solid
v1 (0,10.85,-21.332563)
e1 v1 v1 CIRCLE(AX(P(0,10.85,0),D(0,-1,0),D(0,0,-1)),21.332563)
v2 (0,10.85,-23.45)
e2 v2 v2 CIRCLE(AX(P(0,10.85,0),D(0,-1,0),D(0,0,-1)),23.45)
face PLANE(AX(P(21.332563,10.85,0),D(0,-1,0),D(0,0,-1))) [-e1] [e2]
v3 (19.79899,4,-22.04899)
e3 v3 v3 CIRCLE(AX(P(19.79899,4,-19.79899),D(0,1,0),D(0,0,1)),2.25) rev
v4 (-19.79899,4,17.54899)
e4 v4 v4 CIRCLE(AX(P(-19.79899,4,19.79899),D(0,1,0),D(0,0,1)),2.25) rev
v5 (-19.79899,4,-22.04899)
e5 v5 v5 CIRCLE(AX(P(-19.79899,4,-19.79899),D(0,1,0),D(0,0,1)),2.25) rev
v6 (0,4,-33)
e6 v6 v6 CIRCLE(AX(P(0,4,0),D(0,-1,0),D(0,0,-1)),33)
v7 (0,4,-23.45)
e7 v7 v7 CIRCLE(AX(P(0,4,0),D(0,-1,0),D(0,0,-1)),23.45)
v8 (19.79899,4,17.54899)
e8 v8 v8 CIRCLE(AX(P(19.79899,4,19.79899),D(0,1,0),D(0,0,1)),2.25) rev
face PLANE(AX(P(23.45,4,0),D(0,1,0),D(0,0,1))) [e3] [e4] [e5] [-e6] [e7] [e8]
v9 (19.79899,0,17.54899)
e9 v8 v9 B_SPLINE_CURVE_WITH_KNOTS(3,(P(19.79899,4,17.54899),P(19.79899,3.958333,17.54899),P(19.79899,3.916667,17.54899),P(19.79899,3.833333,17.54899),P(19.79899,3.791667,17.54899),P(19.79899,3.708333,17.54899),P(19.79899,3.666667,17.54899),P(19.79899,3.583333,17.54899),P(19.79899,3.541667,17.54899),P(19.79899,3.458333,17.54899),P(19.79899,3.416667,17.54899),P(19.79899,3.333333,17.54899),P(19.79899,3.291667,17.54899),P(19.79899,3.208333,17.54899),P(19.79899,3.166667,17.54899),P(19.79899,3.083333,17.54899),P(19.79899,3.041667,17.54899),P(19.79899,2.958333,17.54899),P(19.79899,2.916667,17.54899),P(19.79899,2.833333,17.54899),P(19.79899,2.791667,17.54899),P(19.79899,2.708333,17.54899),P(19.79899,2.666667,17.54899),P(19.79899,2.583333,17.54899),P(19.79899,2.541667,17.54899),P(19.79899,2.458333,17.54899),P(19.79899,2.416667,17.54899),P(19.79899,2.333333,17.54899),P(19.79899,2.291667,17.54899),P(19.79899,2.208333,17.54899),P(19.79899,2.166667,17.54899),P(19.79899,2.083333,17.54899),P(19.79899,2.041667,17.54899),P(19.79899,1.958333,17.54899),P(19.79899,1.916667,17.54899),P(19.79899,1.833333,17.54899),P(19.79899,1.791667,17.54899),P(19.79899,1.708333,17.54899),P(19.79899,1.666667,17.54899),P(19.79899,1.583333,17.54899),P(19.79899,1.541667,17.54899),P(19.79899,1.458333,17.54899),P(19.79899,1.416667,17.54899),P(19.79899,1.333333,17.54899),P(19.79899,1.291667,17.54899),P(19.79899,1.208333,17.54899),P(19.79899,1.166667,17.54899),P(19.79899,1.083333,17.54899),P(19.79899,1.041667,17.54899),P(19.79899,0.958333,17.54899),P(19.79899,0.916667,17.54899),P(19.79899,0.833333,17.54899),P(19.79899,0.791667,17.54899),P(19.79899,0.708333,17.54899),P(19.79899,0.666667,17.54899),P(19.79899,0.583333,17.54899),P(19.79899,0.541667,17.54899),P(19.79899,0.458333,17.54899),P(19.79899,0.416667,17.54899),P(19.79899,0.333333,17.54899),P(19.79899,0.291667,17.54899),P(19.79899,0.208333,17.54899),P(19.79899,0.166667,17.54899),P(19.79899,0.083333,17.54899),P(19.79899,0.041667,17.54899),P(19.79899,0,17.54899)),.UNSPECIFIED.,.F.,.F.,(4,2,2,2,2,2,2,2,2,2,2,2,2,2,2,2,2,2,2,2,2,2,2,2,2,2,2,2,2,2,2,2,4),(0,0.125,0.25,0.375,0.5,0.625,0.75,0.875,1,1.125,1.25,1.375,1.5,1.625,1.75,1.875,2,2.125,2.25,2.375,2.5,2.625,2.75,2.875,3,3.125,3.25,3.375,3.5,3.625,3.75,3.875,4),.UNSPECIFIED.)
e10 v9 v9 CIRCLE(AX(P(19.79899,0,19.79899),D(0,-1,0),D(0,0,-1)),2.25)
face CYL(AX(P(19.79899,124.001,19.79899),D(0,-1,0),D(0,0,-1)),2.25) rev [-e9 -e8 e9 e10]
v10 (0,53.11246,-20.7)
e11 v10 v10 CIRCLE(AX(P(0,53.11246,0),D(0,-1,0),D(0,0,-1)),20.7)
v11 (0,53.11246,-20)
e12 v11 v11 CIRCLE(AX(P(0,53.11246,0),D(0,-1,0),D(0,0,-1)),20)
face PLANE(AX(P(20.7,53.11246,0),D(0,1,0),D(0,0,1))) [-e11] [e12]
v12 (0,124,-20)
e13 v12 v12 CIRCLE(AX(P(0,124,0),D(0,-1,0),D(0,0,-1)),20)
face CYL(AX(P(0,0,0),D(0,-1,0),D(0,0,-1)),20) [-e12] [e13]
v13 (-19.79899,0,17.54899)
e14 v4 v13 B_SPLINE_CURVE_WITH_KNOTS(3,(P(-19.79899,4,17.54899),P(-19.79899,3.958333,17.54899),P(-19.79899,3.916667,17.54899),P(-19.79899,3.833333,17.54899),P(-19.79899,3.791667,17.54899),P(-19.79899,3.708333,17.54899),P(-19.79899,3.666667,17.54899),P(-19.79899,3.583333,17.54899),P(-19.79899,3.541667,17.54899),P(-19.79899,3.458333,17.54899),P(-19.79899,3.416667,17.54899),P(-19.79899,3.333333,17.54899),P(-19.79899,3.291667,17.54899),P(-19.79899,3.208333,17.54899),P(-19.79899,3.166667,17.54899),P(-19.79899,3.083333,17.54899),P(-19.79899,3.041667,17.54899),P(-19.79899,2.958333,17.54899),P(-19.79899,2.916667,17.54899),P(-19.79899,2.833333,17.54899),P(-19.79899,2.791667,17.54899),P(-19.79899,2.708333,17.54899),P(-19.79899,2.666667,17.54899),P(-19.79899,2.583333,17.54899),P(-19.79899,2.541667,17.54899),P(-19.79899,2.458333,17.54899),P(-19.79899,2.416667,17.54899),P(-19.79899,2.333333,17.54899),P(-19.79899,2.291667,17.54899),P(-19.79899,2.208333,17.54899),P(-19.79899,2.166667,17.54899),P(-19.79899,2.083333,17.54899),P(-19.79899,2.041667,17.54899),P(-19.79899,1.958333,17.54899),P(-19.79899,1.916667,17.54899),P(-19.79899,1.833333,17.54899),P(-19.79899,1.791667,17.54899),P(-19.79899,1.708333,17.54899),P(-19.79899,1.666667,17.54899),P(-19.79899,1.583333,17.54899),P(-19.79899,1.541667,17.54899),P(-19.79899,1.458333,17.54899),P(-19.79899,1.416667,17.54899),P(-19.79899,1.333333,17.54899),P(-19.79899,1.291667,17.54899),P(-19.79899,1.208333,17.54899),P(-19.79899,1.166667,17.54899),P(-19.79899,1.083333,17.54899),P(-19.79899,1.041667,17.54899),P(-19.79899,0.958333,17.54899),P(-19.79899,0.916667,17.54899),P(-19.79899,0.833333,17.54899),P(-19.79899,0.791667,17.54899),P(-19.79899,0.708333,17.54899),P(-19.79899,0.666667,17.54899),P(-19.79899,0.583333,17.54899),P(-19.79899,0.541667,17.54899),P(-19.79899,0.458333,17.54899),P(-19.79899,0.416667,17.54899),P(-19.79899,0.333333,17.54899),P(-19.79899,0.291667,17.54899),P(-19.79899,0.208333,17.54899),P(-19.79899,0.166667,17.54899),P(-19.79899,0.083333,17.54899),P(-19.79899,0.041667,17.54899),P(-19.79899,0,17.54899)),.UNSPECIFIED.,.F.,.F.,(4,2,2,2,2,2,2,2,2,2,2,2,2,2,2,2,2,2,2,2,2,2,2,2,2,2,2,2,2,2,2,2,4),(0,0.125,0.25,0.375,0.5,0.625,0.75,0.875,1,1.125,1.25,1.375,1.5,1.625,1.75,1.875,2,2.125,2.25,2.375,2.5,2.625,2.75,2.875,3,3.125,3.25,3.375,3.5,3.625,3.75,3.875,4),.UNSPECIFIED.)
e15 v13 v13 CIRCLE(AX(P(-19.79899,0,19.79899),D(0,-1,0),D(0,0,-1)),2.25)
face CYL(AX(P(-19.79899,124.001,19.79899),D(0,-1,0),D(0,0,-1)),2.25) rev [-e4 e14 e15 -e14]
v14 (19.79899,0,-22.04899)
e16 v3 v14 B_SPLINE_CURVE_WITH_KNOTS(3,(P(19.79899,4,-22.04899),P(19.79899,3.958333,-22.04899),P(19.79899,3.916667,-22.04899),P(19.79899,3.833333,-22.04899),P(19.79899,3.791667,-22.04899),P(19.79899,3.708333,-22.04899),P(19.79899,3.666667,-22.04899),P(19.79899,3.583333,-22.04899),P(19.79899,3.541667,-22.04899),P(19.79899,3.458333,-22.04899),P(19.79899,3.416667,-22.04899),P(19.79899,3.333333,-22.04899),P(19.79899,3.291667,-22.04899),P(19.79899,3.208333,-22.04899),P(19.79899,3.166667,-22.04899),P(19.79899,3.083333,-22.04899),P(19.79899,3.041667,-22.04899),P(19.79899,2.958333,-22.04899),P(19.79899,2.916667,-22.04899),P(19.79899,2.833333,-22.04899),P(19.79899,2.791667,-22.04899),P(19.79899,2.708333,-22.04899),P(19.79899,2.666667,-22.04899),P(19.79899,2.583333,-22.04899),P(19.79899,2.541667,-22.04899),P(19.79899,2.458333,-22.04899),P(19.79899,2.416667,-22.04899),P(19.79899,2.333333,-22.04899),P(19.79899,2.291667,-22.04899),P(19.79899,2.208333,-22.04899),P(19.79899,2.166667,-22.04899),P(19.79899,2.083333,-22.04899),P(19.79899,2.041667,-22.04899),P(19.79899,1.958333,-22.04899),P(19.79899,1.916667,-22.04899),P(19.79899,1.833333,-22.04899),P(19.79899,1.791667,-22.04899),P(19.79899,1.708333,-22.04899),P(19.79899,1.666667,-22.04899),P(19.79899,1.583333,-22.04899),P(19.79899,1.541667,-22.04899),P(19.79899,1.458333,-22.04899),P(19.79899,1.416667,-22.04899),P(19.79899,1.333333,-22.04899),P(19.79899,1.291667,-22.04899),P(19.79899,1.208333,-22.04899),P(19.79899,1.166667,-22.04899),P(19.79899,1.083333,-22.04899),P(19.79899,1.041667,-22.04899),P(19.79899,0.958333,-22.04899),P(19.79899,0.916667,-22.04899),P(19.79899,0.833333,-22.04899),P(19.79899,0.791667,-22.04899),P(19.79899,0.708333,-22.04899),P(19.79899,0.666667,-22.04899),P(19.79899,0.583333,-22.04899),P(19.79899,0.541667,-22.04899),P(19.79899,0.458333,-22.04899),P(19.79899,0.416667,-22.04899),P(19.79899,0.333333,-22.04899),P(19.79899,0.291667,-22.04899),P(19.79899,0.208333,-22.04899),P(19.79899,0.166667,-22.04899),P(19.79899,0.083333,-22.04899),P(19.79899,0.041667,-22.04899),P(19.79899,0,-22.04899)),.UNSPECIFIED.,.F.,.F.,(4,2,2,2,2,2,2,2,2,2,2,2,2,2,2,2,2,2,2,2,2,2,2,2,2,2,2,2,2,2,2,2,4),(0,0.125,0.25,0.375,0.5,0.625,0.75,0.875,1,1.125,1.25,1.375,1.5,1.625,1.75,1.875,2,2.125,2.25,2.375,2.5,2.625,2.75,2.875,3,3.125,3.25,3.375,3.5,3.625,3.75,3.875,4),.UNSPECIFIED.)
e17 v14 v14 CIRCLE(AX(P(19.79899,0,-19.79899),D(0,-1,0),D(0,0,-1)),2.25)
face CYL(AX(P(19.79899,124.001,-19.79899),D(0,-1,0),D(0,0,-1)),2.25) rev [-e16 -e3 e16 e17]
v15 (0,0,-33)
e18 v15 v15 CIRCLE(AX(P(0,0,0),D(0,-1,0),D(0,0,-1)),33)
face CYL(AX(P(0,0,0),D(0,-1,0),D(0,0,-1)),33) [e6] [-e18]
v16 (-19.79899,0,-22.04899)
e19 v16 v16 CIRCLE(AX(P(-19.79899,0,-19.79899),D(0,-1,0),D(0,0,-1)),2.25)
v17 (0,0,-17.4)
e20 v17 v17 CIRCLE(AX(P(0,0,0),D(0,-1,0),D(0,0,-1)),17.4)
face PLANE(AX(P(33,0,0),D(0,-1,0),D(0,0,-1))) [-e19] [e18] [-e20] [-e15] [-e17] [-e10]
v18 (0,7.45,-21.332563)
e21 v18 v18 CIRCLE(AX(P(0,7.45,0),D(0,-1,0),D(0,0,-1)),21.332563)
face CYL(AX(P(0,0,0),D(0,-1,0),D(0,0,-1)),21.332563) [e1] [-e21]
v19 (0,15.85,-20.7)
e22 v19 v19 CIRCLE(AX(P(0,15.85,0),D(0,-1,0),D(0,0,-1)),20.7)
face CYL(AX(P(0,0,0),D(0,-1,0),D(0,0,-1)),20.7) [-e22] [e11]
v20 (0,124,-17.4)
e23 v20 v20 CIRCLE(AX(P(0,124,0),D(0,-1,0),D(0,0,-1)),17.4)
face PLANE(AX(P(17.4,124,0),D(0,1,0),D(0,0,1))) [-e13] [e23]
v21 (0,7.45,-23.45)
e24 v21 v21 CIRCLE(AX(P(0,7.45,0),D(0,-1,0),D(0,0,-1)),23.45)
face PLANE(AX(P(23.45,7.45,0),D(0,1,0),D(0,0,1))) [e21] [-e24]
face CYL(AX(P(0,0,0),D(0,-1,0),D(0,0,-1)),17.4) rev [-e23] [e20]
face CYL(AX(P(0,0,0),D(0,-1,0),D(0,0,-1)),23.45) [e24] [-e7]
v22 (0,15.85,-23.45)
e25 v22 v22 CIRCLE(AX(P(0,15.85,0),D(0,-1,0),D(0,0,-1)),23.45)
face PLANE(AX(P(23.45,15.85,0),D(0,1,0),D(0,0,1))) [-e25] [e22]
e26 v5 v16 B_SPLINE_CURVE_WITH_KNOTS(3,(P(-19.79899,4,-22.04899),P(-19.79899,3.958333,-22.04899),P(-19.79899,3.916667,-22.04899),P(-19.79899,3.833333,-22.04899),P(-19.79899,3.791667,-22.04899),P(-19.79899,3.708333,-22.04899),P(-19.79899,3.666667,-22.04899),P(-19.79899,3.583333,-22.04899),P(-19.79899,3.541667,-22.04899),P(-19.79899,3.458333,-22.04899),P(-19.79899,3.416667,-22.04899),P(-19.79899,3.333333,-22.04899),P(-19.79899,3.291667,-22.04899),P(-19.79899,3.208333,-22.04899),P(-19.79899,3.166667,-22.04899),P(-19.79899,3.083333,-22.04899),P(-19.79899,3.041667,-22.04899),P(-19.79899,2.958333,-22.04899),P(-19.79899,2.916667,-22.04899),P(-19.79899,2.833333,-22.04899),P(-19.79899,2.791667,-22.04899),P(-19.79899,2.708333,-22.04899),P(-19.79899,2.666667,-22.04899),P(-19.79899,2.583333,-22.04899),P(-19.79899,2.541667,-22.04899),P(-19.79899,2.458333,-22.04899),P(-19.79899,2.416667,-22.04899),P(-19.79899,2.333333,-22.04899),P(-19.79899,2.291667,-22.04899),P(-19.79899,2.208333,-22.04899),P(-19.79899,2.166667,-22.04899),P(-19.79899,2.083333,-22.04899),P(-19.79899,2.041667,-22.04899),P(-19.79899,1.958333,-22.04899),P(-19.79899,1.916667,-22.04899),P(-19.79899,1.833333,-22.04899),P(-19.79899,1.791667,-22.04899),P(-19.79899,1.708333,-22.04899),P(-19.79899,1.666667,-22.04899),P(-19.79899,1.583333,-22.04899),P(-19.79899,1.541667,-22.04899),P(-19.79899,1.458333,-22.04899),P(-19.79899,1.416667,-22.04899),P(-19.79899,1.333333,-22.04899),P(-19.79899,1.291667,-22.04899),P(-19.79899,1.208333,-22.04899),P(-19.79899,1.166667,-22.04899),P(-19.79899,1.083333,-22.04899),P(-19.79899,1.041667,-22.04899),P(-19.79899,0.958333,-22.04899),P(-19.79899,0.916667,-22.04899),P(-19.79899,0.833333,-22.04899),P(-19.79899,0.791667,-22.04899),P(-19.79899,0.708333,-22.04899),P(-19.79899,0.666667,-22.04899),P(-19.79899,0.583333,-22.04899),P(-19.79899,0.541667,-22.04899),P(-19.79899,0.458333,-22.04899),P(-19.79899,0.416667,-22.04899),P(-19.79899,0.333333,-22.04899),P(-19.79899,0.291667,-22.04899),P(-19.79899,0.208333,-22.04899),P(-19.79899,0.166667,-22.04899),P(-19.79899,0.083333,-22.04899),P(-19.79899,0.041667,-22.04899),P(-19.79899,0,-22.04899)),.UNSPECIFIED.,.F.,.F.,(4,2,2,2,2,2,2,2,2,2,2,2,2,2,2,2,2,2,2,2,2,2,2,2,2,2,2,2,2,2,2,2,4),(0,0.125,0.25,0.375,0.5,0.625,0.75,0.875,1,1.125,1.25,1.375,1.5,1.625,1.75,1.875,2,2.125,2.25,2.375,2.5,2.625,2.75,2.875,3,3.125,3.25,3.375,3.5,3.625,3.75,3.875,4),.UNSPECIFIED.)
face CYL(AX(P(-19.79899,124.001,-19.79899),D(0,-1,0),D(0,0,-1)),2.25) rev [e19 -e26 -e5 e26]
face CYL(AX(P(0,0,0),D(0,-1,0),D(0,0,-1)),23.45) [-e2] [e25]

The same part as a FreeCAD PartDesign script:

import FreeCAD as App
import Part
import Sketcher
Q = App.Units.Quantity


def add_polygon(sketch, points):
    """Adds a closed chain of lines whose ends are joined by coincident constraints."""
    first, n = sketch.GeometryCount, len(points)
    for a, b in zip(points, points[1:] + points[:1]):
        sketch.addGeometry(Part.LineSegment(App.Vector(*a, 0), App.Vector(*b, 0)), False)
    for i in range(n):
        sketch.addConstraint(Sketcher.Constraint("Coincident", first + i, 2, first + (i + 1) % n, 1))

doc = App.newDocument("Part")
body = doc.addObject("PartDesign::Body", "Body")

# Sketch on XY plane
sketch1 = doc.addObject("Sketcher::SketchObject", "Sketch")
body.addObject(sketch1)
sketch1.AttachmentSupport = (doc.XY_Plane, [""])
sketch1.MapMode = "FlatFace"
add_polygon(sketch1, [(17.4, 124), (17.4, 0), (33, 0), (33, 4), (23.4, 4), (23.4, 7.5), (21.3, 7.5), (21.3, 10.8), (23.4, 10.8), (23.4, 15.8), (20.7, 15.8), (20.7, 53.1), (20, 53.1), (20, 124)])  # lines 0-13
sketch1.addConstraint(Sketcher.Constraint("Vertical", 0))
sketch1.addConstraint(Sketcher.Constraint("Horizontal", 1))
sketch1.addConstraint(Sketcher.Constraint("Vertical", 2))
sketch1.addConstraint(Sketcher.Constraint("Horizontal", 3))
sketch1.addConstraint(Sketcher.Constraint("Vertical", 4))
sketch1.addConstraint(Sketcher.Constraint("Horizontal", 5))
sketch1.addConstraint(Sketcher.Constraint("Vertical", 6))
sketch1.addConstraint(Sketcher.Constraint("Horizontal", 7))
sketch1.addConstraint(Sketcher.Constraint("Vertical", 8))
sketch1.addConstraint(Sketcher.Constraint("Horizontal", 9))
sketch1.addConstraint(Sketcher.Constraint("Vertical", 10))
sketch1.addConstraint(Sketcher.Constraint("Horizontal", 11))
sketch1.addConstraint(Sketcher.Constraint("Vertical", 12))
sketch1.addConstraint(Sketcher.Constraint("Horizontal", 13))
sketch1.addConstraint(Sketcher.Constraint("PointOnObject", 0, 2, -1))
sketch1.addConstraint(Sketcher.Constraint("Vertical", 4, 2, 7, 2))
sketch1.addConstraint(Sketcher.Constraint("DistanceY", 0, 2, 0, 1, Q("124 mm")))
sketch1.addConstraint(Sketcher.Constraint("DistanceY", 2, 1, 2, 2, Q("4 mm")))
sketch1.addConstraint(Sketcher.Constraint("DistanceY", 8, 1, 8, 2, Q("5 mm")))
sketch1.addConstraint(Sketcher.Constraint("DistanceX", 1, 1, 1, 2, Q("15.6 mm")))
sketch1.addConstraint(Sketcher.Constraint("DistanceX", 11, 2, 11, 1, Q("0.7 mm")))
sketch1.addConstraint(Sketcher.Constraint("DistanceX", 13, 2, 13, 1, Q("2.6 mm")))
sketch1.addConstraint(Sketcher.Constraint("DistanceY", 6, 1, 6, 2, Q("3.4 mm")))
sketch1.addConstraint(Sketcher.Constraint("DistanceX", -1, 1, 1, 2, Q("33 mm")))
sketch1.addConstraint(Sketcher.Constraint("DistanceX", 3, 2, 3, 1, Q("9.55 mm")))
sketch1.addConstraint(Sketcher.Constraint("DistanceY", 4, 1, 4, 2, Q("3.45 mm")))
sketch1.addConstraint(Sketcher.Constraint("DistanceY", 10, 1, 10, 2, Q("37.26246 mm")))
sketch1.addConstraint(Sketcher.Constraint("DistanceX", 5, 2, 5, 1, Q("2.117437 mm")))
revolution = doc.addObject("PartDesign::Revolution", "Revolution")
body.addObject(revolution)
revolution.Profile = sketch1
revolution.ReferenceAxis = (sketch1, ["V_Axis"])
revolution.Angle = 360

# Sketch on XZ plane
sketch2 = doc.addObject("Sketcher::SketchObject", "Sketch001")
body.addObject(sketch2)
sketch2.AttachmentSupport = (doc.XZ_Plane, [""])
sketch2.MapMode = "FlatFace"
sketch2.addGeometry(Part.Circle(App.Vector(-19.8, 19.8, 0), App.Vector(0, 0, 1), 2.2), False)
sketch2.addConstraint(Sketcher.Constraint("Diameter", 0, Q("4.5 mm")))
sketch2.addConstraint(Sketcher.Constraint("DistanceX", 0, 3, -1, 1, Q("19.79899 mm")))
sketch2.addConstraint(Sketcher.Constraint("DistanceY", -1, 1, 0, 3, Q("19.79899 mm")))
pocket1 = doc.addObject("PartDesign::Pocket", "Pocket")
body.addObject(pocket1)
pocket1.Profile = sketch2
pocket1.Type = "UpToFirst"

# Sketch on XZ plane
sketch3 = doc.addObject("Sketcher::SketchObject", "Sketch002")
body.addObject(sketch3)
sketch3.AttachmentSupport = (doc.XZ_Plane, [""])
sketch3.MapMode = "FlatFace"
sketch3.addGeometry(Part.Circle(App.Vector(19.8, 19.8, 0), App.Vector(0, 0, 1), 2.2), False)
sketch3.addConstraint(Sketcher.Constraint("Diameter", 0, Q("4.5 mm")))
sketch3.addConstraint(Sketcher.Constraint("DistanceX", -1, 1, 0, 3, Q("19.79899 mm")))
sketch3.addConstraint(Sketcher.Constraint("DistanceY", -1, 1, 0, 3, Q("19.79899 mm")))
pocket2 = doc.addObject("PartDesign::Pocket", "Pocket001")
body.addObject(pocket2)
pocket2.Profile = sketch3
pocket2.Type = "UpToFirst"

# Sketch on XZ plane
sketch4 = doc.addObject("Sketcher::SketchObject", "Sketch003")
body.addObject(sketch4)
sketch4.AttachmentSupport = (doc.XZ_Plane, [""])
sketch4.MapMode = "FlatFace"
sketch4.addGeometry(Part.Circle(App.Vector(19.8, -19.8, 0), App.Vector(0, 0, 1), 2.2), False)
sketch4.addConstraint(Sketcher.Constraint("Diameter", 0, Q("4.5 mm")))
sketch4.addConstraint(Sketcher.Constraint("DistanceX", -1, 1, 0, 3, Q("19.79899 mm")))
sketch4.addConstraint(Sketcher.Constraint("DistanceY", 0, 3, -1, 1, Q("19.79899 mm")))
pocket3 = doc.addObject("PartDesign::Pocket", "Pocket002")
body.addObject(pocket3)
pocket3.Profile = sketch4
pocket3.Type = "UpToFirst"

# Sketch on XZ plane
sketch5 = doc.addObject("Sketcher::SketchObject", "Sketch004")
body.addObject(sketch5)
sketch5.AttachmentSupport = (doc.XZ_Plane, [""])
sketch5.MapMode = "FlatFace"
sketch5.addGeometry(Part.Circle(App.Vector(-19.8, -19.8, 0), App.Vector(0, 0, 1), 2.2), False)
sketch5.addConstraint(Sketcher.Constraint("Diameter", 0, Q("4.5 mm")))
sketch5.addConstraint(Sketcher.Constraint("DistanceX", 0, 3, -1, 1, Q("19.79899 mm")))
sketch5.addConstraint(Sketcher.Constraint("DistanceY", 0, 3, -1, 1, Q("19.79899 mm")))
pocket4 = doc.addObject("PartDesign::Pocket", "Pocket003")
body.addObject(pocket4)
pocket4.Profile = sketch5
pocket4.Type = "UpToFirst"

doc.recompute()
